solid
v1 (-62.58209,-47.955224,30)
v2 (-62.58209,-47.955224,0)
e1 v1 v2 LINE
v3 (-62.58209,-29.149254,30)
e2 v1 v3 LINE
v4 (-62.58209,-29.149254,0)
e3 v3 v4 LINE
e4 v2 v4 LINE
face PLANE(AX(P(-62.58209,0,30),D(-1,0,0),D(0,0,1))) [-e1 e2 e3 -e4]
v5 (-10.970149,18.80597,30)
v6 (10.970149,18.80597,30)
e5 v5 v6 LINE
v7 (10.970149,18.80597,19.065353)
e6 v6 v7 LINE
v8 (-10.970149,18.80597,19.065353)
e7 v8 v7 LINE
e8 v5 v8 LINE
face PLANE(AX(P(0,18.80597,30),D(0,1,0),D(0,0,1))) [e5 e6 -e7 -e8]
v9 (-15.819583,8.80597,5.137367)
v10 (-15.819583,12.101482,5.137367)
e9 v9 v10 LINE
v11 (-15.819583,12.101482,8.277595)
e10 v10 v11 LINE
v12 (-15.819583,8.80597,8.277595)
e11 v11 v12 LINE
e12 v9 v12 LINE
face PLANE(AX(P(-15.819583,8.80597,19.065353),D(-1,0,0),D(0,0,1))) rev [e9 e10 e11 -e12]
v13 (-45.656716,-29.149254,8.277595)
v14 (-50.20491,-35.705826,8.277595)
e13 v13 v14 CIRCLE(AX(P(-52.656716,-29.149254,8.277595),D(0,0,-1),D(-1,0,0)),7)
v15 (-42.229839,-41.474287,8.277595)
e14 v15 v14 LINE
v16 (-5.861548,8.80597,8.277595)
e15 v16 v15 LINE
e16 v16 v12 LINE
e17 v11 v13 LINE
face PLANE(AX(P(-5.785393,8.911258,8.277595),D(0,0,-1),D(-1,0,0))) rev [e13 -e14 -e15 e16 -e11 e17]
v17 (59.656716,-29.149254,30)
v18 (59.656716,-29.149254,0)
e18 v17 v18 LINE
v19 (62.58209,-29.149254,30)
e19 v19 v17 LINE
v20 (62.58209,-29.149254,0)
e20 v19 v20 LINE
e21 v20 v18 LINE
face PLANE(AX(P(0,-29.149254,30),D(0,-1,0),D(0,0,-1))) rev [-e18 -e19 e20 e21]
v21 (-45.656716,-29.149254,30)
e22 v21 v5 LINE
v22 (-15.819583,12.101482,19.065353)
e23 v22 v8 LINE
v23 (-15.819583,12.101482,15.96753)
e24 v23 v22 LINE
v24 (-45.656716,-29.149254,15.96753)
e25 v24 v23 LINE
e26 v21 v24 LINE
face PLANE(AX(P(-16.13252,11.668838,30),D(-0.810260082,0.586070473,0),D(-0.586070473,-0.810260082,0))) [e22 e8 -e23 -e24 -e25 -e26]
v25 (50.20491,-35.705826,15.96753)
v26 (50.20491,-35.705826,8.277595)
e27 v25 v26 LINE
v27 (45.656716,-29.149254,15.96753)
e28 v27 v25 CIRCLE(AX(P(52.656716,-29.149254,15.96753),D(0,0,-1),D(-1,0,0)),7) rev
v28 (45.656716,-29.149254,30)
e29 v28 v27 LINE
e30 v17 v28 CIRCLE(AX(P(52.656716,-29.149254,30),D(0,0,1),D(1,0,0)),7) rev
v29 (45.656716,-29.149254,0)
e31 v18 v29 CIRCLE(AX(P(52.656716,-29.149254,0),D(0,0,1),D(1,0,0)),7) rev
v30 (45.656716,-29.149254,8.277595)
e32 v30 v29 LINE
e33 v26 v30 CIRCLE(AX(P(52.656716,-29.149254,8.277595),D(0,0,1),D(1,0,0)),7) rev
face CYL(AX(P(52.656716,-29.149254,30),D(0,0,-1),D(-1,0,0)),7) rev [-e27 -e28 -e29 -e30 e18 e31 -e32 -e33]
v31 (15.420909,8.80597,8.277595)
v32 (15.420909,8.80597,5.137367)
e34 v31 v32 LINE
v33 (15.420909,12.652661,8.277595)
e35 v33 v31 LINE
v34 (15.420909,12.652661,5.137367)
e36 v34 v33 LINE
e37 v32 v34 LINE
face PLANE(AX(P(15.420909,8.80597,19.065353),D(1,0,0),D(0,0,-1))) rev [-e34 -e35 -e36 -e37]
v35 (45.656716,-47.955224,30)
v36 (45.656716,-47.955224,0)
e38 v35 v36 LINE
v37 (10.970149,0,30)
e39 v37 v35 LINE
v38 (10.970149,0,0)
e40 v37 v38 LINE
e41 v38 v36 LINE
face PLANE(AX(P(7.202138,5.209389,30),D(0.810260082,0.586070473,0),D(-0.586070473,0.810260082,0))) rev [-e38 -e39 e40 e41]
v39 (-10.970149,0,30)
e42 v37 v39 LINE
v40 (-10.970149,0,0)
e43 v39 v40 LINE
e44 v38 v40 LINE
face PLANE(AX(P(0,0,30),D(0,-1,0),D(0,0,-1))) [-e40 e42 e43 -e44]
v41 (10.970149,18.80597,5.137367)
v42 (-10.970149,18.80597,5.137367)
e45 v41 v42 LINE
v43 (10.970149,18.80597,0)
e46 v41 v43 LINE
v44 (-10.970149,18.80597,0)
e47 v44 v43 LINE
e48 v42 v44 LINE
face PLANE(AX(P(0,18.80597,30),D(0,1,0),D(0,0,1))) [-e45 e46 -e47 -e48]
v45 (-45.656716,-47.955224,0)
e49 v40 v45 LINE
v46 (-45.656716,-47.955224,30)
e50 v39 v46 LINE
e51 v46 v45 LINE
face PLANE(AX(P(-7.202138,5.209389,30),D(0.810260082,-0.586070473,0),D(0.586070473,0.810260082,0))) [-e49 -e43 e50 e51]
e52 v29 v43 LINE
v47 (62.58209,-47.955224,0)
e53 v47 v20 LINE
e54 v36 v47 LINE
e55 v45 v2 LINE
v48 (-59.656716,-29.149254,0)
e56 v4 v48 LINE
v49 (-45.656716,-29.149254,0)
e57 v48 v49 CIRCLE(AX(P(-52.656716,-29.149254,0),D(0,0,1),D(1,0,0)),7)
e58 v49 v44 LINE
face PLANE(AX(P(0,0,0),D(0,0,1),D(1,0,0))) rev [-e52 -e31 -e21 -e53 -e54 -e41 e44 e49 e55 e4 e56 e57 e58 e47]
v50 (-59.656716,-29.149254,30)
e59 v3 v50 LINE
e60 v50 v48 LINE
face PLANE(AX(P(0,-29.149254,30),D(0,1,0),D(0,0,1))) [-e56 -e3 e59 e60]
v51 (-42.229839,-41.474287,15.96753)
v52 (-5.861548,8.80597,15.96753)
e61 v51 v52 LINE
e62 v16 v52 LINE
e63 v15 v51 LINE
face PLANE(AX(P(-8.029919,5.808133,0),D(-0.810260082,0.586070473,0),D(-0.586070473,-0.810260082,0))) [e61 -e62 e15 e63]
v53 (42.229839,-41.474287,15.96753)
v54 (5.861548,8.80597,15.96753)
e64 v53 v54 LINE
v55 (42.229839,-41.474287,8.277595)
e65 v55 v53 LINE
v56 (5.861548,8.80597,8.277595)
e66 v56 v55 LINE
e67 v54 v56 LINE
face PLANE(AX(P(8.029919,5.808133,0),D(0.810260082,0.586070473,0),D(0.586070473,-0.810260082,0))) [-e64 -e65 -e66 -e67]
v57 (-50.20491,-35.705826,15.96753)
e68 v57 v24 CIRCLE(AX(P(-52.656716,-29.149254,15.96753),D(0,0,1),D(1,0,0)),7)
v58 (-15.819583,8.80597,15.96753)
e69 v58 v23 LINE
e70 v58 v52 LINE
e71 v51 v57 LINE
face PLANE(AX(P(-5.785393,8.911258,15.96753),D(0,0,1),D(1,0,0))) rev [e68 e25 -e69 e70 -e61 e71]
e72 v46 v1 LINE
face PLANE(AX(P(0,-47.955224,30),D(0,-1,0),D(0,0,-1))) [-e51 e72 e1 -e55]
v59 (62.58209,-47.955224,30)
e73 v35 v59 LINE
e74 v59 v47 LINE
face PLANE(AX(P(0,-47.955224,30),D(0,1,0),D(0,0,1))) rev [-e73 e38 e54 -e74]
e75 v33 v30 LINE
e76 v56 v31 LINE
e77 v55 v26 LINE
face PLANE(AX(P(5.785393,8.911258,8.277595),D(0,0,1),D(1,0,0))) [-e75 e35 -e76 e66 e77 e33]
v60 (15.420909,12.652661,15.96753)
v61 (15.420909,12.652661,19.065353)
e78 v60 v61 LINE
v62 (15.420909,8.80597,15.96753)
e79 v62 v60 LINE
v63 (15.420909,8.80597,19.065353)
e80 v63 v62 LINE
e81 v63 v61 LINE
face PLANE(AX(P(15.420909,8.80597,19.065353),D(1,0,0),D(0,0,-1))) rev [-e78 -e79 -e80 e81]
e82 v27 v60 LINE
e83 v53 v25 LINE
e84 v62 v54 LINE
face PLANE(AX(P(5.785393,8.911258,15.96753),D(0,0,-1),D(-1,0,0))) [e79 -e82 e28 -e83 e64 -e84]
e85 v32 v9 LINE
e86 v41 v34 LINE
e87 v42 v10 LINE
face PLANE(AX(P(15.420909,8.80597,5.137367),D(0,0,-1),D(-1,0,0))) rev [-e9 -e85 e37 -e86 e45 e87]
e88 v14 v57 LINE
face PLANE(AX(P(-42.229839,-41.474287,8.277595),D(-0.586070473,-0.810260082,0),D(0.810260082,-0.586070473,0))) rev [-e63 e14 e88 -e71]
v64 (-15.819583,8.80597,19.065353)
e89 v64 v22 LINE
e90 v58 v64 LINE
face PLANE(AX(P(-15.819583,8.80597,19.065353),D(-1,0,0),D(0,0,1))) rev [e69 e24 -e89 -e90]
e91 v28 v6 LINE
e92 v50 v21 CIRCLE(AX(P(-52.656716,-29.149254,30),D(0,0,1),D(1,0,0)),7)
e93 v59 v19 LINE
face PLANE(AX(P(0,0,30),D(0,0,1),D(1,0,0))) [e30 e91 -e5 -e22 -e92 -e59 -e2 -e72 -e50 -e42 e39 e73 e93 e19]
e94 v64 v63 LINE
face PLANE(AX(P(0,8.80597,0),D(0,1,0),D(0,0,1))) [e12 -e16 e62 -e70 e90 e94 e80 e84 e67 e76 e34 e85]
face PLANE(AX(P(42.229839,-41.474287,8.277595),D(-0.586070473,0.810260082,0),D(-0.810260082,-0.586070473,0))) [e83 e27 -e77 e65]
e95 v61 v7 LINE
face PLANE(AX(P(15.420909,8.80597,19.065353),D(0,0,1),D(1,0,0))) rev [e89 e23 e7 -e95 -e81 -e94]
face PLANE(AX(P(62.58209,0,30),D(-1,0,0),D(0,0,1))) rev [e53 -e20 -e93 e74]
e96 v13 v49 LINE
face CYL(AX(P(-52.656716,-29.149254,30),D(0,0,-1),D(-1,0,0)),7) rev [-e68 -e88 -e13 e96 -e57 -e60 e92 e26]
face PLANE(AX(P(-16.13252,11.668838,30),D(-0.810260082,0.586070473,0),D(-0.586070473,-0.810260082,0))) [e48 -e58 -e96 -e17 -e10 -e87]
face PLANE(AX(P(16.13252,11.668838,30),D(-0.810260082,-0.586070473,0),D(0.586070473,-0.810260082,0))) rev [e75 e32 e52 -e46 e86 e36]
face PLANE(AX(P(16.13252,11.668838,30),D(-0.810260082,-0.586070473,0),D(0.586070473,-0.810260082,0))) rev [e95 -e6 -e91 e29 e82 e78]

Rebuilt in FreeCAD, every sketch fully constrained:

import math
import FreeCAD as App
import Part
import Sketcher
from FreeCAD import Vector


def add_polygon(sketch, points):
    """Adds a closed chain of lines whose ends are joined by coincident constraints."""
    first, n = sketch.GeometryCount, len(points)
    for a, b in zip(points, points[1:] + points[:1]):
        sketch.addGeometry(Part.LineSegment(App.Vector(*a, 0), App.Vector(*b, 0)), False)
    for i in range(n):
        sketch.addConstraint(Sketcher.Constraint("Coincident", first + i, 2, first + (i + 1) % n, 1))

doc = App.newDocument("Part")
body = doc.addObject("PartDesign::Body", "Body")

sketch1 = body.newObject("Sketcher::SketchObject", "Sketch")
sketch1.AttachmentSupport = (doc.getObject("XY_Plane"), [""])
sketch1.MapMode = "FlatFace"
sketch1.addGeometry([
    Part.LineSegment(Vector(-10.970149, 0, 0), Vector(10.970149, 0, 0)),
    Part.LineSegment(Vector(10.970149, 0, 0), Vector(45.656716, -47.955224, 0)),
    Part.LineSegment(Vector(45.656716, -47.955224, 0), Vector(62.58209, -47.955224, 0)),
    Part.LineSegment(Vector(62.58209, -47.955224, 0), Vector(62.58209, -29.149254, 0)),
    Part.LineSegment(Vector(62.58209, -29.149254, 0), Vector(59.656716, -29.149254, 0)),
    Part.ArcOfCircle(Part.Circle(Vector(52.656716, -29.149254, 0), Vector(0, 0, 1), 7), math.radians(180), math.radians(360)),
    Part.LineSegment(Vector(45.656716, -29.149254, 0), Vector(10.970149, 18.80597, 0)),
    Part.LineSegment(Vector(10.970149, 18.80597, 0), Vector(-10.970149, 18.80597, 0)),
    Part.LineSegment(Vector(-10.970149, 18.80597, 0), Vector(-45.656716, -29.149254, 0)),
    Part.ArcOfCircle(Part.Circle(Vector(-52.656716, -29.149254, 0), Vector(0, 0, 1), 7), math.radians(180), math.radians(360)),
    Part.LineSegment(Vector(-59.656716, -29.149254, 0), Vector(-62.58209, -29.149254, 0)),
    Part.LineSegment(Vector(-62.58209, -29.149254, 0), Vector(-62.58209, -47.955224, 0)),
    Part.LineSegment(Vector(-62.58209, -47.955224, 0), Vector(-45.656716, -47.955224, 0)),
    Part.LineSegment(Vector(-45.656716, -47.955224, 0), Vector(-10.970149, 0, 0)),
], False)
sketch1.addConstraint([
    Sketcher.Constraint("Coincident", 0, 2, 1, 1),
    Sketcher.Constraint("Coincident", 1, 2, 2, 1),
    Sketcher.Constraint("Coincident", 2, 2, 3, 1),
    Sketcher.Constraint("Coincident", 3, 2, 4, 1),
    Sketcher.Constraint("Coincident", 4, 2, 5, 2),
    Sketcher.Constraint("Coincident", 5, 1, 6, 1),
    Sketcher.Constraint("Coincident", 6, 2, 7, 1),
    Sketcher.Constraint("Coincident", 7, 2, 8, 1),
    Sketcher.Constraint("Coincident", 8, 2, 9, 2),
    Sketcher.Constraint("Coincident", 9, 1, 10, 1),
    Sketcher.Constraint("Coincident", 10, 2, 11, 1),
    Sketcher.Constraint("Coincident", 11, 2, 12, 1),
    Sketcher.Constraint("Coincident", 12, 2, 13, 1),
    Sketcher.Constraint("Coincident", 13, 2, 0, 1),
    Sketcher.Constraint("Horizontal", 0),
    Sketcher.Constraint("Horizontal", 2),
    Sketcher.Constraint("Vertical", 3),
    Sketcher.Constraint("Horizontal", 4),
    Sketcher.Constraint("Horizontal", 7),
    Sketcher.Constraint("Horizontal", 10),
    Sketcher.Constraint("Vertical", 11),
    Sketcher.Constraint("Horizontal", 12),
    Sketcher.Constraint("Equal", 5, 9),
    Sketcher.Constraint("Symmetric", 0, 2, 13, 2, -1, 1),
    Sketcher.Constraint("Symmetric", 5, 3, 9, 3, -2),
    Sketcher.Constraint("Symmetric", 3, 2, 10, 2, -2),
    Sketcher.Constraint("Symmetric", 1, 2, 12, 2, -2),
    Sketcher.Constraint("Parallel", 1, 6),
    Sketcher.Constraint("Parallel", 8, 13),
    Sketcher.Constraint("Horizontal", 9, 3, 3, 2),
    Sketcher.Constraint("Horizontal", 4, 2, 5, 1),
    Sketcher.Constraint("Horizontal", 5, 1, 8, 2),
    Sketcher.Constraint("Vertical", 1, 2, 5, 1),
    Sketcher.Constraint("Vertical", 0, 2, 6, 2),
    Sketcher.Constraint("Radius", 5, 7.0),
    Sketcher.Constraint("DistanceX", 0, 1, 0, 2, 21.940299),
    Sketcher.Constraint("DistanceY", 3, 1, 3, 2, 18.80597),
    Sketcher.Constraint("DistanceX", 2, 1, 2, 2, 16.925373),
    Sketcher.Constraint("DistanceX", -1, 1, 2, 2, 62.58209),
    Sketcher.Constraint("Distance", 1, 59.184976),
])
pad1 = body.newObject("PartDesign::Pad", "Pad")
pad1.Profile = sketch1
pad1.Length = 30

sketch2 = body.newObject("Sketcher::SketchObject", "Sketch001")
sketch2.AttachmentSupport = (doc.getObject("XZ_Plane"), [""])
sketch2.MapMode = "FlatFace"
sketch2.AttachmentOffset = App.Placement(Vector(0, 0, -18.80597), App.Rotation())
add_polygon(sketch2, [(-15.819583, 5.137367), (-15.819583, 19.065353), (15.420909, 19.065353), (15.420909, 5.137367)])
sketch2.addConstraint([
    Sketcher.Constraint("Vertical", 0),
    Sketcher.Constraint("Horizontal", 1),
    Sketcher.Constraint("Vertical", 2),
    Sketcher.Constraint("Horizontal", 3),
    Sketcher.Constraint("DistanceX", 1, 1, 1, 2, 31.240492),
    Sketcher.Constraint("DistanceY", 0, 1, 0, 2, 13.927986),
    Sketcher.Constraint("DistanceX", -1, 1, 1, 2, 15.420909),
    Sketcher.Constraint("DistanceY", -1, 1, 0, 2, 19.065353),
])
pocket1 = body.newObject("PartDesign::Pocket", "Pocket")
pocket1.Profile = sketch2
pocket1.Length = 10
pocket1.Reversed = True

sketch3 = body.newObject("Sketcher::SketchObject", "Sketch002")
sketch3.Placement = App.Placement(Vector(-16.13252, 11.668838, 0), App.Rotation(Vector(0, 0, 1), Vector(0.586070473, 0.810260082, 0), Vector(-0.810260082, 0.586070473, 0), "ZXY"))
add_polygon(sketch3, [(8.277595, 3.829789), (8.277595, -58.354621), (15.96753, -58.354621), (15.96753, 3.829789)])
sketch3.addConstraint([
    Sketcher.Constraint("Vertical", 0),
    Sketcher.Constraint("Horizontal", 1),
    Sketcher.Constraint("Vertical", 2),
    Sketcher.Constraint("Horizontal", 3),
    Sketcher.Constraint("DistanceY", 0, 2, 0, 1, 62.18441),
    Sketcher.Constraint("DistanceX", 1, 1, 1, 2, 7.689935),
    Sketcher.Constraint("DistanceY", 0, 2, -1, 1, 58.354621),
    Sketcher.Constraint("DistanceX", -1, 1, 1, 2, 15.96753),
])
pocket2 = body.newObject("PartDesign::Pocket", "Pocket001")
pocket2.Profile = sketch3
pocket2.Length = 10
doc.recompute()

mirrored = body.newObject("PartDesign::Mirrored", "Mirrored")
mirrored.Originals = [pocket2]
mirrored.MirrorPlane = (doc.getObject("YZ_Plane"), [""])
body.Tip = mirrored

doc.recompute()
